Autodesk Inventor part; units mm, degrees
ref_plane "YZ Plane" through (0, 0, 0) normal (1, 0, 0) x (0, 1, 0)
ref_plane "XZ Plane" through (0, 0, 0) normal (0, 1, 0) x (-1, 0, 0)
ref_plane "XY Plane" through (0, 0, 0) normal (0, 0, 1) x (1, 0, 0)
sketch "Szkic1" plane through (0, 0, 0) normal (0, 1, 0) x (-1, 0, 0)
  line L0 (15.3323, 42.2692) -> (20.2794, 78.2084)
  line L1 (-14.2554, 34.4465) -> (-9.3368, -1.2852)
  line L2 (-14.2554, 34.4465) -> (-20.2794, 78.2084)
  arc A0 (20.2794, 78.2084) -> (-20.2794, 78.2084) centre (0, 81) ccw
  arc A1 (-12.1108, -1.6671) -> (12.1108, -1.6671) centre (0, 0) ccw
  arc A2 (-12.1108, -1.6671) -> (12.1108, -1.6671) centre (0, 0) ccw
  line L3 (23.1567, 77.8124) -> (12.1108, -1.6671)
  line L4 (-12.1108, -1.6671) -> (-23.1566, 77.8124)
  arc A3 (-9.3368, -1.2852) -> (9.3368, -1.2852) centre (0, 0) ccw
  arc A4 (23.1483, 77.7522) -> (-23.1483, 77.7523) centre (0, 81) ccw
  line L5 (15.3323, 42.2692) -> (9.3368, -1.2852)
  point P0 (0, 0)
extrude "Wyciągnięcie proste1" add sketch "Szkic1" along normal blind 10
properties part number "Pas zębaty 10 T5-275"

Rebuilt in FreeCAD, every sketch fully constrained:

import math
import FreeCAD as App
import Part
import Sketcher

V = App.Vector

doc = App.newDocument("Part")
params = doc.addObject("Spreadsheet::Sheet", "Params")
for row, (alias, value) in enumerate([
    ("pad1_length", "10 mm"),
], start=1):
    params.set(f"A{row}", alias)
    params.set(f"B{row}", "=" + value)
    params.setAlias(f"B{row}", alias)

body = doc.addObject("PartDesign::Body", "Body")

# Sketch on XZ plane
sketch1 = body.newObject("Sketcher::SketchObject", "Sketch")
sketch1.AttachmentSupport = (doc.getObject("XZ_Plane"), [""])
sketch1.MapMode = "FlatFace"
sketch1.addGeometry(Part.LineSegment(V(23, 78, 0), V(12, -2, 0)), False)
sketch1.addGeometry(Part.ArcOfCircle(Part.Circle(V(0, 0, 0), V(0, 0, 1), 12), math.radians(-172), math.radians(-8)), False)
sketch1.addGeometry(Part.LineSegment(V(-12, -2, 0), V(-23, 78, 0)), False)
sketch1.addGeometry(Part.ArcOfCircle(Part.Circle(V(0, 81, 0), V(0, 0, 1), 23), math.radians(-8), math.radians(188)), False)
sketch1.addGeometry(Part.LineSegment(V(-20, 78, 0), V(-15, 42, 0)), False)
sketch1.addGeometry(Part.LineSegment(V(-15, 42, 0), V(-9, -1, 0)), False)
sketch1.addGeometry(Part.ArcOfCircle(Part.Circle(V(0, 0, 0), V(0, 0, 1), 9), math.radians(-172), math.radians(-8)), False)
sketch1.addGeometry(Part.LineSegment(V(9, -1, 0), V(14, 34, 0)), False)
sketch1.addGeometry(Part.LineSegment(V(14, 34, 0), V(20, 78, 0)), False)
sketch1.addGeometry(Part.ArcOfCircle(Part.Circle(V(0, 81, 0), V(0, 0, 1), 20), math.radians(-8), math.radians(188)), False)
sketch1.addConstraint(Sketcher.Constraint("Coincident", 0, 2, 1, 2))
sketch1.addConstraint(Sketcher.Constraint("Coincident", 1, 1, 2, 1))
sketch1.addConstraint(Sketcher.Constraint("Coincident", 2, 2, 3, 2))
sketch1.addConstraint(Sketcher.Constraint("Coincident", 3, 1, 0, 1))
sketch1.addConstraint(Sketcher.Constraint("Coincident", 4, 2, 5, 1))
sketch1.addConstraint(Sketcher.Constraint("Tangent", 5, 2, 6, 1))
sketch1.addConstraint(Sketcher.Constraint("Tangent", 6, 2, 7, 1))
sketch1.addConstraint(Sketcher.Constraint("Coincident", 7, 2, 8, 1))
sketch1.addConstraint(Sketcher.Constraint("Tangent", 8, 2, 9, 1))
sketch1.addConstraint(Sketcher.Constraint("Tangent", 9, 2, 4, 1))
sketch1.addConstraint(Sketcher.Constraint("Coincident", 1, 3, -1, 1))
sketch1.addConstraint(Sketcher.Constraint("Coincident", 6, 3, -1, 1))
sketch1.addConstraint(Sketcher.Constraint("Coincident", 9, 3, 3, 3))
sketch1.addConstraint(Sketcher.Constraint("Symmetric", 2, 2, 3, 1, -2))
sketch1.addConstraint(Sketcher.Constraint("Parallel", 4, 5))
sketch1.addConstraint(Sketcher.Constraint("Parallel", 7, 8))
sketch1.addConstraint(Sketcher.Constraint("Horizontal", 0, 2, 1, 1))
sketch1.addConstraint(Sketcher.Constraint("DistanceY", -1, 1, 3, 3, 81.0))
sketch1.addConstraint(Sketcher.Constraint("Radius", 1, 12.225))
sketch1.addConstraint(Sketcher.Constraint("Radius", 3, 23.375))
sketch1.addConstraint(Sketcher.Constraint("Radius", 6, 9.4248))
sketch1.addConstraint(Sketcher.Constraint("Radius", 9, 20.4706))
sketch1.addConstraint(Sketcher.Constraint("Distance", 4, 36.278))
sketch1.addConstraint(Sketcher.Constraint("DistanceY", 0, 2, -1, 1, 1.667))
sketch1.addConstraint(Sketcher.Constraint("DistanceX", 2, 2, 1, 1, 11.046))
sketch1.addConstraint(Sketcher.Constraint("DistanceX", 7, 2, 8, 2, 6.024))
pad1 = body.newObject("PartDesign::Pad", "Pad")
pad1.Profile = sketch1
pad1.setExpression("Length", "Params.pad1_length")
pad1.Reversed = True

doc.recompute()
